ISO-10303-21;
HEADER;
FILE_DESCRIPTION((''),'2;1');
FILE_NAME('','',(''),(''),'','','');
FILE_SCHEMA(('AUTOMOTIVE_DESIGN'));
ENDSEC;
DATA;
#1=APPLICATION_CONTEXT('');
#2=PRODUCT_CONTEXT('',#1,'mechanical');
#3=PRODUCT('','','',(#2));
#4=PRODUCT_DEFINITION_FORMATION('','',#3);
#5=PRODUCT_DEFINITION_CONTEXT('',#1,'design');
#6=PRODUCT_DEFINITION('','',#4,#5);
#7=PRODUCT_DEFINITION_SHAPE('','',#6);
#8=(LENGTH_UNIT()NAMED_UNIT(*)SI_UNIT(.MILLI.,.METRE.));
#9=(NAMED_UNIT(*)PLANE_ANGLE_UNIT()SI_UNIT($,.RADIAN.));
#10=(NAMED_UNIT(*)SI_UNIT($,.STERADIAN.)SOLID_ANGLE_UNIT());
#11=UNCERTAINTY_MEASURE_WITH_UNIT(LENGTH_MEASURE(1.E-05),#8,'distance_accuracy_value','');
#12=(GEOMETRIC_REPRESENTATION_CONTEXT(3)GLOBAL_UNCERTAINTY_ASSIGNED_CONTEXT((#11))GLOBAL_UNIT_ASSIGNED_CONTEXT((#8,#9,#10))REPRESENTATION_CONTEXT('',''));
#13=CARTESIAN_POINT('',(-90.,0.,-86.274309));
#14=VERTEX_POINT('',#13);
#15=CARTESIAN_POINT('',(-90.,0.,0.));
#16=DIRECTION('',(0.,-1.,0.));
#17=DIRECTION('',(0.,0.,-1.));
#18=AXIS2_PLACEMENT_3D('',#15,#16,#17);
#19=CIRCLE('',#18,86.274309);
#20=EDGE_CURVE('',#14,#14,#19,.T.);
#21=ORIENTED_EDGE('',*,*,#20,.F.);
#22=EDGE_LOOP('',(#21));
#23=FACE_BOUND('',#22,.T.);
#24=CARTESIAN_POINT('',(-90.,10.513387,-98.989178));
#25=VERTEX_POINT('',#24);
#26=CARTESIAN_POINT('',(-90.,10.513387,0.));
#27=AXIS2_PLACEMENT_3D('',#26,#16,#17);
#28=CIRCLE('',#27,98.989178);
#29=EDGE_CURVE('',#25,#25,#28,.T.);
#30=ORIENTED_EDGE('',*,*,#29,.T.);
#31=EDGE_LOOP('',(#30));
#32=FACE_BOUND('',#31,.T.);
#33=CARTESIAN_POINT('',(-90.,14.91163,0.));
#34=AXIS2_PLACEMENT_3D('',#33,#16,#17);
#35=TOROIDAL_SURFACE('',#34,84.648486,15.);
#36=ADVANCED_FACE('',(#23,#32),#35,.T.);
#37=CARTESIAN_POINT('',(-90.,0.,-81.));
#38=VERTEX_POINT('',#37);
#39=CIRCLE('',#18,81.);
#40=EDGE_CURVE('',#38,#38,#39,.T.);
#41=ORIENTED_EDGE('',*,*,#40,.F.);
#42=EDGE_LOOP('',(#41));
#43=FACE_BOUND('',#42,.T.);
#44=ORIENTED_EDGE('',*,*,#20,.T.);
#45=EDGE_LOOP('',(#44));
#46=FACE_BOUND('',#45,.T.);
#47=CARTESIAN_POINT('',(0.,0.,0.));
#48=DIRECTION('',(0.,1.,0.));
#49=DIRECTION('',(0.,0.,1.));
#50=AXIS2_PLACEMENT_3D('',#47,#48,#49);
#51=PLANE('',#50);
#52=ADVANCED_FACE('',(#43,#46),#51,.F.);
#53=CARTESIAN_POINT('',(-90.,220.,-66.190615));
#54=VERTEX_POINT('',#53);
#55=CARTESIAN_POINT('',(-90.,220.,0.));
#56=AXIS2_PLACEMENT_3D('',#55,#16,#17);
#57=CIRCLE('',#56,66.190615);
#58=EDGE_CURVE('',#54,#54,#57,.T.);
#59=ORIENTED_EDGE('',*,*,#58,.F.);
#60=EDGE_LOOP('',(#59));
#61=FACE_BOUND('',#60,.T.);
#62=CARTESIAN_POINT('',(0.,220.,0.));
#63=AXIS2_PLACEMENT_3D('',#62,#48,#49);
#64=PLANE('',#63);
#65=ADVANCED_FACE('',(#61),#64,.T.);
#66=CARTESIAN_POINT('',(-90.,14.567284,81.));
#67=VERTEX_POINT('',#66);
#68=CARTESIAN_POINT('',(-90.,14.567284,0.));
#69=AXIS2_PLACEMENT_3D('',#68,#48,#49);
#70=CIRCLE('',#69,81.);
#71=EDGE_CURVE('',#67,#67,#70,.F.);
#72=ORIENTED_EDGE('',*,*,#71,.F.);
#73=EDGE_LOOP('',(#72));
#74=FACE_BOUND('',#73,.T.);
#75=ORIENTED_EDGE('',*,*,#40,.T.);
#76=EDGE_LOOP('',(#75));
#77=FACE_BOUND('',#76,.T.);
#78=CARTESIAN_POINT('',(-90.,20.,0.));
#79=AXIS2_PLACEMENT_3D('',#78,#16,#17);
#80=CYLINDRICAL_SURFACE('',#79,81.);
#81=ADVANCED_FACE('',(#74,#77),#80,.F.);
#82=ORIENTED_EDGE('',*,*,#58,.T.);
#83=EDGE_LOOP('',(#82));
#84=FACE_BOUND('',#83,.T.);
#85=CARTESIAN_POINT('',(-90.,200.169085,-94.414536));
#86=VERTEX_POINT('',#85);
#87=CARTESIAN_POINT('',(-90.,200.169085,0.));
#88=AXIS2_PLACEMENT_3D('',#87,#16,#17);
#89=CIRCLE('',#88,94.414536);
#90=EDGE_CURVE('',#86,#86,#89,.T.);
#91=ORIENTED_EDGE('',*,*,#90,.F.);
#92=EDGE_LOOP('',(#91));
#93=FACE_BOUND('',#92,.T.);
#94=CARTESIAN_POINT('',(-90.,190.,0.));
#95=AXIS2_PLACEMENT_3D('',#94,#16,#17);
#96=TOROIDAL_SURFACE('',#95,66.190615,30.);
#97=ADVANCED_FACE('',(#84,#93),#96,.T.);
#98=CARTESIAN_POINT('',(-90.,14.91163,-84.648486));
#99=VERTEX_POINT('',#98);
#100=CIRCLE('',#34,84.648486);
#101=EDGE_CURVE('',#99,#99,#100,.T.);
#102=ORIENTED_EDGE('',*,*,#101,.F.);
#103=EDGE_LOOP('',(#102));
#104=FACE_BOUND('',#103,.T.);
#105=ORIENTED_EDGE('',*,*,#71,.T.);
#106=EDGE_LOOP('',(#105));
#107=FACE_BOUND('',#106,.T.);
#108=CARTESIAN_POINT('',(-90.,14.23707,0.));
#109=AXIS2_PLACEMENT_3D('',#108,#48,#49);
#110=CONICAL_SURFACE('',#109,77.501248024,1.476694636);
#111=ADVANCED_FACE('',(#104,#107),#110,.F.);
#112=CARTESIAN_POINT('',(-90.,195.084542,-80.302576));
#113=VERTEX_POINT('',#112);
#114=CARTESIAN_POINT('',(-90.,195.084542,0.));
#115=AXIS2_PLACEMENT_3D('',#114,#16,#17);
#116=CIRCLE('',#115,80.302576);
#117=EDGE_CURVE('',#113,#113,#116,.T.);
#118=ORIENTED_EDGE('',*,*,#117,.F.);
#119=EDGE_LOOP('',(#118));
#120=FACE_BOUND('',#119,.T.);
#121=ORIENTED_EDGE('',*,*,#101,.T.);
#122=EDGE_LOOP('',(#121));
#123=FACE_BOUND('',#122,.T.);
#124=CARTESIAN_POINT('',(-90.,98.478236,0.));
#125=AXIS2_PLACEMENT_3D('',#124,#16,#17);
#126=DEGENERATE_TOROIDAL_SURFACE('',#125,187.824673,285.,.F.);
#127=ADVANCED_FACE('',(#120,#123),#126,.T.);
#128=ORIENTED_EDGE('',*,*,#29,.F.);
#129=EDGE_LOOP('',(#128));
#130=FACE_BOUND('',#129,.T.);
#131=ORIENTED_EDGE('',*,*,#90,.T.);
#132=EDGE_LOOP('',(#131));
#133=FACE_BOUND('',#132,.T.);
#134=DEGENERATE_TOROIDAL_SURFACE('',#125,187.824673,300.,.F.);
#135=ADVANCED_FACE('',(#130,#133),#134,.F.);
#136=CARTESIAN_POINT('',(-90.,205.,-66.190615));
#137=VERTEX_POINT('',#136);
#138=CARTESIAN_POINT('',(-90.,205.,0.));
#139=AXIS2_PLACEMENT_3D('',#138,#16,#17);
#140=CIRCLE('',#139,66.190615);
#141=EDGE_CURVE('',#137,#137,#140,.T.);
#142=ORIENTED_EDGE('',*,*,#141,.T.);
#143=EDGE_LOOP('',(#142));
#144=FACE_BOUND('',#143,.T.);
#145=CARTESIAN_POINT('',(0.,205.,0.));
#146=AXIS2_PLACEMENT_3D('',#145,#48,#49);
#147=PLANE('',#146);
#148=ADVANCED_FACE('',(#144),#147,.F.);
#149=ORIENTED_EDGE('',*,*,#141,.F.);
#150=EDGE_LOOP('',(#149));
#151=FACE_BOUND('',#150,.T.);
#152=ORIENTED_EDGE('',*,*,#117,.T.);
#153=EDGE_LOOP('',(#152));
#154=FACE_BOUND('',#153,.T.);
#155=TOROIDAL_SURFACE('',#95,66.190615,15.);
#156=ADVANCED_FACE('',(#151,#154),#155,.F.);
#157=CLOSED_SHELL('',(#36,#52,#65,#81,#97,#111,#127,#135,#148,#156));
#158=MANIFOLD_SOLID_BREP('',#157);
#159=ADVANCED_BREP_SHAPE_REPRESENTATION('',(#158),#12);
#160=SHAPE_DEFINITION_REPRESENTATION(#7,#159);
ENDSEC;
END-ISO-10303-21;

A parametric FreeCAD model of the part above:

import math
import FreeCAD as App
import Part
import Sketcher
from FreeCAD import Vector

doc = App.newDocument("Part")
body = doc.addObject("PartDesign::Body", "Body")

# Sketch on XY plane
sketch1 = body.newObject("Sketcher::SketchObject", "Sketch")
sketch1.AttachmentSupport = (doc.getObject("XY_Plane"), [""])
sketch1.MapMode = "FlatFace"
sketch1.addGeometry([
    Part.ArcOfCircle(Part.Circle(Vector(-24, 190, 0), Vector(0, 0, 1), 30), math.radians(20), math.radians(90)),  # 0
    Part.LineSegment(Vector(-24, 220, 0), Vector(-90, 220, 0)),  # 1
    Part.LineSegment(Vector(-90, 220, 0), Vector(-90, 205, 0)),  # 2
    Part.LineSegment(Vector(-90, 205, 0), Vector(-24, 205, 0)),  # 3
    Part.ArcOfCircle(Part.Circle(Vector(-24, 190, 0), Vector(0, 0, 1), 15), math.radians(20), math.radians(90)),  # 4
    Part.ArcOfCircle(Part.Circle(Vector(-278, 98, 0), Vector(0, 0, 1), 285), math.radians(-17), math.radians(20)),  # 5
    Part.LineSegment(Vector(-5, 15, 0), Vector(-12, 14, 0)),  # 6
    Part.LineSegment(Vector(-12, 14, 0), Vector(-12, 0, 0)),  # 7
    Part.LineSegment(Vector(-12, 0, 0), Vector(-4, 0, 0)),  # 8
    Part.ArcOfCircle(Part.Circle(Vector(-5, 15, 0), Vector(0, 0, 1), 15), math.radians(-84), math.radians(-17)),  # 9
    Part.ArcOfCircle(Part.Circle(Vector(-278, 98, 0), Vector(0, 0, 1), 300), math.radians(-17), math.radians(20)),  # 10
], False)
sketch1.addGeometry(Part.LineSegment(Vector(-90, 0, 0), Vector(-90, 220, 0)), True)  # axis
sketch1.addConstraint([
    Sketcher.Constraint("Tangent", 0, 2, 1, 1),
    Sketcher.Constraint("Coincident", 1, 2, 2, 1),
    Sketcher.Constraint("Coincident", 2, 2, 3, 1),
    Sketcher.Constraint("Tangent", 3, 2, 4, 2),
    Sketcher.Constraint("Tangent", 4, 1, 5, 2),
    Sketcher.Constraint("Coincident", 5, 1, 6, 1),
    Sketcher.Constraint("Coincident", 6, 2, 7, 1),
    Sketcher.Constraint("Coincident", 7, 2, 8, 1),
    Sketcher.Constraint("Coincident", 8, 2, 9, 1),
    Sketcher.Constraint("Tangent", 9, 2, 10, 1),
    Sketcher.Constraint("Tangent", 10, 2, 0, 1),
    Sketcher.Constraint("Horizontal", 1),
    Sketcher.Constraint("Vertical", 2),
    Sketcher.Constraint("Horizontal", 3),
    Sketcher.Constraint("Vertical", 7),
    Sketcher.Constraint("Horizontal", 8),
    Sketcher.Constraint("Vertical", 11),
    Sketcher.Constraint("Coincident", 4, 3, 0, 3),
    Sketcher.Constraint("Coincident", 10, 3, 5, 3),
    Sketcher.Constraint("Coincident", 5, 1, 9, 3),
    Sketcher.Constraint("Coincident", 11, 2, 1, 2),
    Sketcher.Constraint("Equal", 4, 9),
    Sketcher.Constraint("PointOnObject", 7, 2, -1),
    Sketcher.Constraint("PointOnObject", 11, 1, -1),
    Sketcher.Constraint("Radius", 0, 30.0),
    Sketcher.Constraint("Radius", 5, 285.0),
    Sketcher.Constraint("DistanceY", 11, 1, 11, 2, 220.0),
    Sketcher.Constraint("DistanceX", 1, 2, -1, 1, 90.0),
    Sketcher.Constraint("Distance", 6, 7.179),
    Sketcher.Constraint("DistanceX", 8, 1, 8, 2, 8.773061),
    Sketcher.Constraint("DistanceY", 7, 2, 7, 1, 14.23707),
    Sketcher.Constraint("DistanceX", 1, 2, 1, 1, 66.190615),
    Sketcher.Constraint("DistanceX", 6, 2, -1, 1, 12.498752),
])
revolution = body.newObject("PartDesign::Revolution", "Revolution")
revolution.Profile = sketch1
revolution.ReferenceAxis = (sketch1, ["Axis0"])
revolution.Angle = 360

# Sketch on XZ plane
sketch2 = body.newObject("Sketcher::SketchObject", "Sketch001")
sketch2.AttachmentSupport = (doc.getObject("XZ_Plane"), [""])
sketch2.MapMode = "FlatFace"
sketch2.addGeometry([
    Part.Circle(Vector(-90, 0, 0), Vector(0, 0, 1), 81),
    Part.Circle(Vector(-90, 0, 0), Vector(0, 0, 1), 78),
], False)
sketch2.addConstraint([
    Sketcher.Constraint("Coincident", 1, 3, 0, 3),
    Sketcher.Constraint("PointOnObject", 0, 3, -1),
    Sketcher.Constraint("Diameter", 0, 162.0),
    Sketcher.Constraint("DistanceX", 0, 3, -1, 1, 90.0),
    Sketcher.Constraint("Diameter", 1, 155.002496),
])
pocket1 = body.newObject("PartDesign::Pocket", "Pocket")
pocket1.Profile = sketch2
pocket1.Length = 20

doc.recompute()
